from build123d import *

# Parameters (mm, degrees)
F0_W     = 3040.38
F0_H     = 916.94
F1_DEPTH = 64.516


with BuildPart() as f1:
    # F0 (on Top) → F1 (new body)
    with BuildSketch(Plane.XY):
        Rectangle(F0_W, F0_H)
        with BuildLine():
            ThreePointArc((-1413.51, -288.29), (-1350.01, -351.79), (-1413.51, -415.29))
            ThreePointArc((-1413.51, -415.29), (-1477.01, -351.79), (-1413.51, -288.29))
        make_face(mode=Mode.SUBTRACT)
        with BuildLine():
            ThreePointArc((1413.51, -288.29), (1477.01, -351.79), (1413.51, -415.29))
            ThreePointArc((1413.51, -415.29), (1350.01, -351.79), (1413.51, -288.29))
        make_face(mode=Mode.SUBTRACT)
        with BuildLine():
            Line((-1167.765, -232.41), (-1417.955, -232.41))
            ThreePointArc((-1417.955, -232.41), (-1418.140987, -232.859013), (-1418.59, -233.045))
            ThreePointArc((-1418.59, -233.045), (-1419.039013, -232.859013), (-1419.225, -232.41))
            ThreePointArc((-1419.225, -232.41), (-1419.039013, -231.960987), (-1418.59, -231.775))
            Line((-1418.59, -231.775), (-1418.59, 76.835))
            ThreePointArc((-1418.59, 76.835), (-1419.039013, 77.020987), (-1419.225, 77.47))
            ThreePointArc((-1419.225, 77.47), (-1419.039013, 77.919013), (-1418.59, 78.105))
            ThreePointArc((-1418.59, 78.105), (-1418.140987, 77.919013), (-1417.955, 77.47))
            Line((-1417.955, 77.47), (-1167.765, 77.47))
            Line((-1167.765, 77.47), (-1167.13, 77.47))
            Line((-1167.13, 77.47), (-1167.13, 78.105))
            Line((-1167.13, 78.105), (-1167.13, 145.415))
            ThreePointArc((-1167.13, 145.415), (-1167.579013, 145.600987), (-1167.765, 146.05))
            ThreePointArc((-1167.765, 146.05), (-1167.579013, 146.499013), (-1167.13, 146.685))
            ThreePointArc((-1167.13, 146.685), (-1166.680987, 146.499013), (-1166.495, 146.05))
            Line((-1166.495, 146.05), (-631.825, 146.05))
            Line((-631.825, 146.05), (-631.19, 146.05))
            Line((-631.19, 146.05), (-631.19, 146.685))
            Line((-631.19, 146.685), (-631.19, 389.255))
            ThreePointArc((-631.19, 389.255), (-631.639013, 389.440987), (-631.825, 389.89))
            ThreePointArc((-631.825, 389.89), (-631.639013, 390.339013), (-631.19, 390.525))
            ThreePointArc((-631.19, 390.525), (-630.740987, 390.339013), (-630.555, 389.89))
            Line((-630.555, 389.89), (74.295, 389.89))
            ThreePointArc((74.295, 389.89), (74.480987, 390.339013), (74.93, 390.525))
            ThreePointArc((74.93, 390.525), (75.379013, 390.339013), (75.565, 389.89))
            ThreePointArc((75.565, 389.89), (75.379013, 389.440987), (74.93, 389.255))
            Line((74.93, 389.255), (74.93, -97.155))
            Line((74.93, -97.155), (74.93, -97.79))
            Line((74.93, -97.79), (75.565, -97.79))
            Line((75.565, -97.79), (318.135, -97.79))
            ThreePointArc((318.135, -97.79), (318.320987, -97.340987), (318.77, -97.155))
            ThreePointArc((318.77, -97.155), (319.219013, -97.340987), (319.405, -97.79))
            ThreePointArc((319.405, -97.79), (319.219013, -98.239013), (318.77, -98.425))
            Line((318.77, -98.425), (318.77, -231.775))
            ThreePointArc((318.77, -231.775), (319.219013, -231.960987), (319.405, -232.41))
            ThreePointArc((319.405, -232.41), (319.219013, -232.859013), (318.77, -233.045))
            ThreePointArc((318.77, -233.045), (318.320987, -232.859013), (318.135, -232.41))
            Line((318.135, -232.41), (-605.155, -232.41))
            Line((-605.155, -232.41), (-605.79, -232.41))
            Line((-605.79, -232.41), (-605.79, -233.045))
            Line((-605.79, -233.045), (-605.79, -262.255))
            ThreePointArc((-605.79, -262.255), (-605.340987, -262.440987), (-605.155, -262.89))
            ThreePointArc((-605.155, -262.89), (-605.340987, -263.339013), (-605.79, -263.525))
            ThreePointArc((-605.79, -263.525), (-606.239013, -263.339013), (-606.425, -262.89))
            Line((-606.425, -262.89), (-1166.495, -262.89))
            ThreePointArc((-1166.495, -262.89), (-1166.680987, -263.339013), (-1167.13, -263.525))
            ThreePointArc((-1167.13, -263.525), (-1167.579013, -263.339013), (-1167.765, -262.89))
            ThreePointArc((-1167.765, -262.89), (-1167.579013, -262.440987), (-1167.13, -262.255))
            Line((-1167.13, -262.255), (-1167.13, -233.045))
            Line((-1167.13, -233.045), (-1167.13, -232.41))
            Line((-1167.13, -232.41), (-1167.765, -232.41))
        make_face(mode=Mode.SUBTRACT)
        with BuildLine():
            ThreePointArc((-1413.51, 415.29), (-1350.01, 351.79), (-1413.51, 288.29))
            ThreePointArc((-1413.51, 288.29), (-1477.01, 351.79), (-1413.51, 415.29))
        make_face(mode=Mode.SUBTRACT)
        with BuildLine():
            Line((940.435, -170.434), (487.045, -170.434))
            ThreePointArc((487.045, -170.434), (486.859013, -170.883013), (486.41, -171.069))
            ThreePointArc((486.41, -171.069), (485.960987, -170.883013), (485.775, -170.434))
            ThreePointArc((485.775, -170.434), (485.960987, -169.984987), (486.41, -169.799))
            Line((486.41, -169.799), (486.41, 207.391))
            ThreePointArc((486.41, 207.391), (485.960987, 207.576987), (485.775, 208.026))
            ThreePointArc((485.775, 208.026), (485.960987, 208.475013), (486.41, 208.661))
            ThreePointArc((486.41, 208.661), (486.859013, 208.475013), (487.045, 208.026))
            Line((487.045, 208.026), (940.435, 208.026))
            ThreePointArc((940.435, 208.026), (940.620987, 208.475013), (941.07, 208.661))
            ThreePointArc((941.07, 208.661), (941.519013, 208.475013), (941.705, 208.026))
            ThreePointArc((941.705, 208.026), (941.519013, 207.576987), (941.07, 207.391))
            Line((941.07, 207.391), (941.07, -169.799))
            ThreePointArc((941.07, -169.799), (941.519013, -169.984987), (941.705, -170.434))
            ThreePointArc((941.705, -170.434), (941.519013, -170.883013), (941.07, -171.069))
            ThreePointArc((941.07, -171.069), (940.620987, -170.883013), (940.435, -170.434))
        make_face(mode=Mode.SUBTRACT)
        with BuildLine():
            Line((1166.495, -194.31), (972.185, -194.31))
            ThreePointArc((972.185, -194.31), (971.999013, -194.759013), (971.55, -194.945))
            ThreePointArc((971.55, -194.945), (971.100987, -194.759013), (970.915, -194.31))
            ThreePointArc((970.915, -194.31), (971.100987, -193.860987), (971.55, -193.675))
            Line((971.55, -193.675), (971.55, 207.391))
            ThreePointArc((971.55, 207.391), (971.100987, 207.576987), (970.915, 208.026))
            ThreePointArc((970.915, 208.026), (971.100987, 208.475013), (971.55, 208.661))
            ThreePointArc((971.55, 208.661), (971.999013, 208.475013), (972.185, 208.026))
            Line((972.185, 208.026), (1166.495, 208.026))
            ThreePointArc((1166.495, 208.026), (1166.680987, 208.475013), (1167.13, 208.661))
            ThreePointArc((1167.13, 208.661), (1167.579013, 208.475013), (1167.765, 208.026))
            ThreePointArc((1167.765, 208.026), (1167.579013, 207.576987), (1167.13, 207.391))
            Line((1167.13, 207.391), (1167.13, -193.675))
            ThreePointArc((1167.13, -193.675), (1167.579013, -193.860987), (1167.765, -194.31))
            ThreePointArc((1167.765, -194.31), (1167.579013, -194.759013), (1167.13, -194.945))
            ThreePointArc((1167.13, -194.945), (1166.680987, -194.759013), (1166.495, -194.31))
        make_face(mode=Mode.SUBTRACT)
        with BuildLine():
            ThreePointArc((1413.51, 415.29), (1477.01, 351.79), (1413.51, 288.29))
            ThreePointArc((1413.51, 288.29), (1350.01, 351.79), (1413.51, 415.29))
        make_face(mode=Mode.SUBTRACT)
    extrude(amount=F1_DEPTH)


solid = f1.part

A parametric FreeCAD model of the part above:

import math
import FreeCAD as App
import Part
import Sketcher

V = App.Vector
Q = App.Units.Quantity


def add_polygon(sketch, points):
    """Adds a closed chain of lines whose ends are joined by coincident constraints."""
    first, n = sketch.GeometryCount, len(points)
    for a, b in zip(points, points[1:] + points[:1]):
        sketch.addGeometry(Part.LineSegment(App.Vector(*a, 0), App.Vector(*b, 0)), False)
    for i in range(n):
        sketch.addConstraint(Sketcher.Constraint("Coincident", first + i, 2, first + (i + 1) % n, 1))

doc = App.newDocument("Part")
body = doc.addObject("PartDesign::Body", "Body")

# Sketch on XY plane
sketch1 = body.newObject("Sketcher::SketchObject", "Sketch")
sketch1.AttachmentSupport = (doc.getObject("XY_Plane"), [""])
sketch1.MapMode = "FlatFace"
add_polygon(sketch1, [(-1520.19, 458.47), (-1520.19, -458.47), (1520.19, -458.47), (1520.19, 458.47)])  # lines 0-3
sketch1.addGeometry(Part.Circle(V(-1413.51, -351.79, 0), V(0, 0, 1), 63.5), False)  # 4
sketch1.addGeometry(Part.Circle(V(1413.51, -351.79, 0), V(0, 0, 1), 63.5), False)  # 5
sketch1.addGeometry(Part.LineSegment(V(-1167.13, -232.41, 0), V(-1417.955, -232.41, 0)), False)  # 6
sketch1.addGeometry(Part.ArcOfCircle(Part.Circle(V(-1418.589999, -232.410001, 0), V(0, 0, 1), 0.634999), math.radians(-90.00006), math.radians(0.00006)), False)  # 7
sketch1.addGeometry(Part.ArcOfCircle(Part.Circle(V(-1418.590001, -232.410001, 0), V(0, 0, 1), 0.634999), math.radians(179.99994), math.radians(270.00006)), False)  # 8
sketch1.addGeometry(Part.ArcOfCircle(Part.Circle(V(-1418.590001, -232.409999, 0), V(0, 0, 1), 0.634999), math.radians(89.99994), math.radians(180.00006)), False)  # 9
sketch1.addGeometry(Part.LineSegment(V(-1418.59, -231.775, 0), V(-1418.59, 76.835, 0)), False)  # 10
sketch1.addGeometry(Part.ArcOfCircle(Part.Circle(V(-1418.590001, 77.469999, 0), V(0, 0, 1), 0.634999), math.radians(179.99994), math.radians(270.00006)), False)  # 11
sketch1.addGeometry(Part.ArcOfCircle(Part.Circle(V(-1418.590001, 77.470001, 0), V(0, 0, 1), 0.634999), math.radians(89.99994), math.radians(180.00006)), False)  # 12
sketch1.addGeometry(Part.ArcOfCircle(Part.Circle(V(-1418.589999, 77.470001, 0), V(0, 0, 1), 0.634999), math.radians(-0.00006), math.radians(90.00006)), False)  # 13
sketch1.addGeometry(Part.LineSegment(V(-1417.955, 77.47, 0), V(-1167.13, 77.47, 0)), False)  # 14
sketch1.addGeometry(Part.LineSegment(V(-1167.13, 77.47, 0), V(-1167.13, 145.415, 0)), False)  # 15
sketch1.addGeometry(Part.ArcOfCircle(Part.Circle(V(-1167.130001, 146.049999, 0), V(0, 0, 1), 0.634999), math.radians(179.99994), math.radians(270.00006)), False)  # 16
sketch1.addGeometry(Part.ArcOfCircle(Part.Circle(V(-1167.130001, 146.050001, 0), V(0, 0, 1), 0.634999), math.radians(89.99994), math.radians(180.00006)), False)  # 17
sketch1.addGeometry(Part.ArcOfCircle(Part.Circle(V(-1167.129999, 146.050001, 0), V(0, 0, 1), 0.634999), math.radians(-0.00006), math.radians(90.00006)), False)  # 18
sketch1.addGeometry(Part.LineSegment(V(-1166.495, 146.05, 0), V(-631.19, 146.05, 0)), False)  # 19
sketch1.addGeometry(Part.LineSegment(V(-631.19, 146.05, 0), V(-631.19, 389.255, 0)), False)  # 20
sketch1.addGeometry(Part.ArcOfCircle(Part.Circle(V(-631.190001, 389.889999, 0), V(0, 0, 1), 0.634999), math.radians(179.99994), math.radians(270.00006)), False)  # 21
sketch1.addGeometry(Part.ArcOfCircle(Part.Circle(V(-631.190001, 389.890001, 0), V(0, 0, 1), 0.634999), math.radians(89.99994), math.radians(180.00006)), False)  # 22
sketch1.addGeometry(Part.ArcOfCircle(Part.Circle(V(-631.189999, 389.890001, 0), V(0, 0, 1), 0.634999), math.radians(-0.00006), math.radians(90.00006)), False)  # 23
sketch1.addGeometry(Part.LineSegment(V(-630.555, 389.89, 0), V(74.295, 389.89, 0)), False)  # 24
sketch1.addGeometry(Part.ArcOfCircle(Part.Circle(V(74.929999, 389.890001, 0), V(0, 0, 1), 0.634999), math.radians(89.99994), math.radians(180.00006)), False)  # 25
sketch1.addGeometry(Part.ArcOfCircle(Part.Circle(V(74.930001, 389.890001, 0), V(0, 0, 1), 0.634999), math.radians(-0.00006), math.radians(90.00006)), False)  # 26
sketch1.addGeometry(Part.ArcOfCircle(Part.Circle(V(74.930001, 389.889999, 0), V(0, 0, 1), 0.634999), math.radians(-90.00006), math.radians(0.00006)), False)  # 27
sketch1.addGeometry(Part.LineSegment(V(74.93, 389.255, 0), V(74.93, -97.79, 0)), False)  # 28
sketch1.addGeometry(Part.LineSegment(V(74.93, -97.79, 0), V(318.135, -97.79, 0)), False)  # 29
sketch1.addGeometry(Part.ArcOfCircle(Part.Circle(V(318.769999, -97.789999, 0), V(0, 0, 1), 0.634999), math.radians(89.99994), math.radians(180.00006)), False)  # 30
sketch1.addGeometry(Part.ArcOfCircle(Part.Circle(V(318.770001, -97.789999, 0), V(0, 0, 1), 0.634999), math.radians(-0.00006), math.radians(90.00006)), False)  # 31
sketch1.addGeometry(Part.ArcOfCircle(Part.Circle(V(318.770001, -97.790001, 0), V(0, 0, 1), 0.634999), math.radians(-90.00006), math.radians(0.00006)), False)  # 32
sketch1.addGeometry(Part.LineSegment(V(318.77, -98.425, 0), V(318.77, -231.775, 0)), False)  # 33
sketch1.addGeometry(Part.ArcOfCircle(Part.Circle(V(318.770001, -232.409999, 0), V(0, 0, 1), 0.634999), math.radians(-0.00006), math.radians(90.00006)), False)  # 34
sketch1.addGeometry(Part.ArcOfCircle(Part.Circle(V(318.770001, -232.410001, 0), V(0, 0, 1), 0.634999), math.radians(-90.00006), math.radians(0.00006)), False)  # 35
sketch1.addGeometry(Part.ArcOfCircle(Part.Circle(V(318.769999, -232.410001, 0), V(0, 0, 1), 0.634999), math.radians(179.99994), math.radians(270.00006)), False)  # 36
sketch1.addGeometry(Part.LineSegment(V(318.135, -232.41, 0), V(-605.79, -232.41, 0)), False)  # 37
sketch1.addGeometry(Part.LineSegment(V(-605.79, -232.41, 0), V(-605.79, -262.255, 0)), False)  # 38
sketch1.addGeometry(Part.ArcOfCircle(Part.Circle(V(-605.789999, -262.889999, 0), V(0, 0, 1), 0.634999), math.radians(-0.00006), math.radians(90.00006)), False)  # 39
sketch1.addGeometry(Part.ArcOfCircle(Part.Circle(V(-605.789999, -262.890001, 0), V(0, 0, 1), 0.634999), math.radians(-90.00006), math.radians(0.00006)), False)  # 40
sketch1.addGeometry(Part.ArcOfCircle(Part.Circle(V(-605.790001, -262.890001, 0), V(0, 0, 1), 0.634999), math.radians(179.99994), math.radians(270.00006)), False)  # 41
sketch1.addGeometry(Part.LineSegment(V(-606.425, -262.89, 0), V(-1166.495, -262.89, 0)), False)  # 42
sketch1.addGeometry(Part.ArcOfCircle(Part.Circle(V(-1167.129999, -262.890001, 0), V(0, 0, 1), 0.634999), math.radians(-90.00006), math.radians(0.00006)), False)  # 43
sketch1.addGeometry(Part.ArcOfCircle(Part.Circle(V(-1167.130001, -262.890001, 0), V(0, 0, 1), 0.634999), math.radians(179.99994), math.radians(270.00006)), False)  # 44
sketch1.addGeometry(Part.ArcOfCircle(Part.Circle(V(-1167.130001, -262.889999, 0), V(0, 0, 1), 0.634999), math.radians(89.99994), math.radians(180.00006)), False)  # 45
sketch1.addGeometry(Part.LineSegment(V(-1167.13, -262.255, 0), V(-1167.13, -232.41, 0)), False)  # 46
sketch1.addGeometry(Part.Circle(V(-1413.51, 351.79, 0), V(0, 0, 1), 63.5), False)  # 47
sketch1.addGeometry(Part.ArcOfCircle(Part.Circle(V(941.069999, -170.434001, 0), V(0, 0, 1), 0.634999), math.radians(179.99994), math.radians(270.00006)), False)  # 48
sketch1.addGeometry(Part.LineSegment(V(940.435, -170.434, 0), V(487.045, -170.434, 0)), False)  # 49
sketch1.addGeometry(Part.ArcOfCircle(Part.Circle(V(486.410001, -170.434001, 0), V(0, 0, 1), 0.634999), math.radians(-90.00006), math.radians(0.00006)), False)  # 50
sketch1.addGeometry(Part.ArcOfCircle(Part.Circle(V(486.409999, -170.434001, 0), V(0, 0, 1), 0.634999), math.radians(179.99994), math.radians(270.00006)), False)  # 51
sketch1.addGeometry(Part.ArcOfCircle(Part.Circle(V(486.409999, -170.433999, 0), V(0, 0, 1), 0.634999), math.radians(89.99994), math.radians(180.00006)), False)  # 52
sketch1.addGeometry(Part.LineSegment(V(486.41, -169.799, 0), V(486.41, 207.391, 0)), False)  # 53
sketch1.addGeometry(Part.ArcOfCircle(Part.Circle(V(486.409999, 208.025999, 0), V(0, 0, 1), 0.634999), math.radians(179.99994), math.radians(270.00006)), False)  # 54
sketch1.addGeometry(Part.ArcOfCircle(Part.Circle(V(486.409999, 208.026001, 0), V(0, 0, 1), 0.634999), math.radians(89.99994), math.radians(180.00006)), False)  # 55
sketch1.addGeometry(Part.ArcOfCircle(Part.Circle(V(486.410001, 208.026001, 0), V(0, 0, 1), 0.634999), math.radians(-0.00006), math.radians(90.00006)), False)  # 56
sketch1.addGeometry(Part.LineSegment(V(487.045, 208.026, 0), V(940.435, 208.026, 0)), False)  # 57
sketch1.addGeometry(Part.ArcOfCircle(Part.Circle(V(941.069999, 208.026001, 0), V(0, 0, 1), 0.634999), math.radians(89.99994), math.radians(180.00006)), False)  # 58
sketch1.addGeometry(Part.ArcOfCircle(Part.Circle(V(941.070001, 208.026001, 0), V(0, 0, 1), 0.634999), math.radians(-0.00006), math.radians(90.00006)), False)  # 59
sketch1.addGeometry(Part.ArcOfCircle(Part.Circle(V(941.070001, 208.025999, 0), V(0, 0, 1), 0.634999), math.radians(-90.00006), math.radians(0.00006)), False)  # 60
sketch1.addGeometry(Part.LineSegment(V(941.07, 207.391, 0), V(941.07, -169.799, 0)), False)  # 61
sketch1.addGeometry(Part.ArcOfCircle(Part.Circle(V(941.070001, -170.433999, 0), V(0, 0, 1), 0.634999), math.radians(-0.00006), math.radians(90.00006)), False)  # 62
sketch1.addGeometry(Part.ArcOfCircle(Part.Circle(V(941.070001, -170.434001, 0), V(0, 0, 1), 0.634999), math.radians(-90.00006), math.radians(0.00006)), False)  # 63
sketch1.addGeometry(Part.ArcOfCircle(Part.Circle(V(1167.129999, -194.310001, 0), V(0, 0, 1), 0.634999), math.radians(179.99994), math.radians(270.00006)), False)  # 64
sketch1.addGeometry(Part.LineSegment(V(1166.495, -194.31, 0), V(972.185, -194.31, 0)), False)  # 65
sketch1.addGeometry(Part.ArcOfCircle(Part.Circle(V(971.550001, -194.310001, 0), V(0, 0, 1), 0.634999), math.radians(-90.00006), math.radians(0.00006)), False)  # 66
sketch1.addGeometry(Part.ArcOfCircle(Part.Circle(V(971.549999, -194.310001, 0), V(0, 0, 1), 0.634999), math.radians(179.99994), math.radians(270.00006)), False)  # 67
sketch1.addGeometry(Part.ArcOfCircle(Part.Circle(V(971.549999, -194.309999, 0), V(0, 0, 1), 0.634999), math.radians(89.99994), math.radians(180.00006)), False)  # 68
sketch1.addGeometry(Part.LineSegment(V(971.55, -193.675, 0), V(971.55, 207.391, 0)), False)  # 69
sketch1.addGeometry(Part.ArcOfCircle(Part.Circle(V(971.549999, 208.025999, 0), V(0, 0, 1), 0.634999), math.radians(179.99994), math.radians(270.00006)), False)  # 70
sketch1.addGeometry(Part.ArcOfCircle(Part.Circle(V(971.549999, 208.026001, 0), V(0, 0, 1), 0.634999), math.radians(89.99994), math.radians(180.00006)), False)  # 71
sketch1.addGeometry(Part.ArcOfCircle(Part.Circle(V(971.550001, 208.026001, 0), V(0, 0, 1), 0.634999), math.radians(-0.00006), math.radians(90.00006)), False)  # 72
sketch1.addGeometry(Part.LineSegment(V(972.185, 208.026, 0), V(1166.495, 208.026, 0)), False)  # 73
sketch1.addGeometry(Part.ArcOfCircle(Part.Circle(V(1167.129999, 208.026001, 0), V(0, 0, 1), 0.634999), math.radians(89.99994), math.radians(180.00006)), False)  # 74
sketch1.addGeometry(Part.ArcOfCircle(Part.Circle(V(1167.130001, 208.026001, 0), V(0, 0, 1), 0.634999), math.radians(-0.00006), math.radians(90.00006)), False)  # 75
sketch1.addGeometry(Part.ArcOfCircle(Part.Circle(V(1167.130001, 208.025999, 0), V(0, 0, 1), 0.634999), math.radians(-90.00006), math.radians(0.00006)), False)  # 76
sketch1.addGeometry(Part.LineSegment(V(1167.13, 207.391, 0), V(1167.13, -193.675, 0)), False)  # 77
sketch1.addGeometry(Part.ArcOfCircle(Part.Circle(V(1167.130001, -194.309999, 0), V(0, 0, 1), 0.634999), math.radians(-0.00006), math.radians(90.00006)), False)  # 78
sketch1.addGeometry(Part.ArcOfCircle(Part.Circle(V(1167.130001, -194.310001, 0), V(0, 0, 1), 0.634999), math.radians(-90.00006), math.radians(0.00006)), False)  # 79
sketch1.addGeometry(Part.Circle(V(1413.51, 351.79, 0), V(0, 0, 1), 63.5), False)  # 80
sketch1.addConstraint([
    Sketcher.Constraint("Coincident", 6, 2, 7, 2),
    Sketcher.Constraint("Coincident", 7, 1, 8, 2),
    Sketcher.Constraint("Coincident", 8, 1, 9, 2),
    Sketcher.Constraint("Coincident", 9, 1, 10, 1),
    Sketcher.Constraint("Coincident", 10, 2, 11, 2),
    Sketcher.Constraint("Coincident", 11, 1, 12, 2),
    Sketcher.Constraint("Coincident", 12, 1, 13, 2),
    Sketcher.Constraint("Coincident", 13, 1, 14, 1),
    Sketcher.Constraint("Coincident", 14, 2, 15, 1),
    Sketcher.Constraint("Coincident", 15, 2, 16, 2),
    Sketcher.Constraint("Coincident", 16, 1, 17, 2),
    Sketcher.Constraint("Coincident", 17, 1, 18, 2),
    Sketcher.Constraint("Coincident", 18, 1, 19, 1),
    Sketcher.Constraint("Coincident", 19, 2, 20, 1),
    Sketcher.Constraint("Coincident", 20, 2, 21, 2),
    Sketcher.Constraint("Coincident", 21, 1, 22, 2),
    Sketcher.Constraint("Coincident", 22, 1, 23, 2),
    Sketcher.Constraint("Coincident", 23, 1, 24, 1),
    Sketcher.Constraint("Coincident", 24, 2, 25, 2),
    Sketcher.Constraint("Coincident", 25, 1, 26, 2),
    Sketcher.Constraint("Coincident", 26, 1, 27, 2),
    Sketcher.Constraint("Coincident", 27, 1, 28, 1),
    Sketcher.Constraint("Coincident", 28, 2, 29, 1),
    Sketcher.Constraint("Coincident", 29, 2, 30, 2),
    Sketcher.Constraint("Coincident", 30, 1, 31, 2),
    Sketcher.Constraint("Coincident", 31, 1, 32, 2),
    Sketcher.Constraint("Coincident", 32, 1, 33, 1),
    Sketcher.Constraint("Coincident", 33, 2, 34, 2),
    Sketcher.Constraint("Coincident", 34, 1, 35, 2),
    Sketcher.Constraint("Coincident", 35, 1, 36, 2),
    Sketcher.Constraint("Coincident", 36, 1, 37, 1),
    Sketcher.Constraint("Coincident", 37, 2, 38, 1),
    Sketcher.Constraint("Coincident", 38, 2, 39, 2),
    Sketcher.Constraint("Coincident", 39, 1, 40, 2),
    Sketcher.Constraint("Coincident", 40, 1, 41, 2),
    Sketcher.Constraint("Coincident", 41, 1, 42, 1),
    Sketcher.Constraint("Coincident", 42, 2, 43, 2),
    Sketcher.Constraint("Coincident", 43, 1, 44, 2),
    Sketcher.Constraint("Coincident", 44, 1, 45, 2),
    Sketcher.Constraint("Coincident", 45, 1, 46, 1),
    Sketcher.Constraint("Coincident", 46, 2, 6, 1),
    Sketcher.Constraint("Coincident", 48, 1, 49, 1),
    Sketcher.Constraint("Coincident", 49, 2, 50, 2),
    Sketcher.Constraint("Coincident", 50, 1, 51, 2),
    Sketcher.Constraint("Coincident", 51, 1, 52, 2),
    Sketcher.Constraint("Coincident", 52, 1, 53, 1),
    Sketcher.Constraint("Coincident", 53, 2, 54, 2),
    Sketcher.Constraint("Coincident", 54, 1, 55, 2),
    Sketcher.Constraint("Coincident", 55, 1, 56, 2),
    Sketcher.Constraint("Coincident", 56, 1, 57, 1),
    Sketcher.Constraint("Coincident", 57, 2, 58, 2),
    Sketcher.Constraint("Coincident", 58, 1, 59, 2),
    Sketcher.Constraint("Coincident", 59, 1, 60, 2),
    Sketcher.Constraint("Coincident", 60, 1, 61, 1),
    Sketcher.Constraint("Coincident", 61, 2, 62, 2),
    Sketcher.Constraint("Coincident", 62, 1, 63, 2),
    Sketcher.Constraint("Coincident", 63, 1, 48, 2),
    Sketcher.Constraint("Coincident", 64, 1, 65, 1),
    Sketcher.Constraint("Coincident", 65, 2, 66, 2),
    Sketcher.Constraint("Coincident", 66, 1, 67, 2),
    Sketcher.Constraint("Coincident", 67, 1, 68, 2),
    Sketcher.Constraint("Coincident", 68, 1, 69, 1),
    Sketcher.Constraint("Coincident", 69, 2, 70, 2),
    Sketcher.Constraint("Coincident", 70, 1, 71, 2),
    Sketcher.Constraint("Coincident", 71, 1, 72, 2),
    Sketcher.Constraint("Coincident", 72, 1, 73, 1),
    Sketcher.Constraint("Coincident", 73, 2, 74, 2),
    Sketcher.Constraint("Coincident", 74, 1, 75, 2),
    Sketcher.Constraint("Coincident", 75, 1, 76, 2),
    Sketcher.Constraint("Coincident", 76, 1, 77, 1),
    Sketcher.Constraint("Coincident", 77, 2, 78, 2),
    Sketcher.Constraint("Coincident", 78, 1, 79, 2),
    Sketcher.Constraint("Coincident", 79, 1, 64, 2),
    Sketcher.Constraint("Vertical", 0),
    Sketcher.Constraint("Horizontal", 1),
    Sketcher.Constraint("Vertical", 2),
    Sketcher.Constraint("Horizontal", 3),
    Sketcher.Constraint("Horizontal", 6),
    Sketcher.Constraint("Vertical", 10),
    Sketcher.Constraint("Horizontal", 14),
    Sketcher.Constraint("Vertical", 15),
    Sketcher.Constraint("Horizontal", 19),
    Sketcher.Constraint("Vertical", 20),
    Sketcher.Constraint("Horizontal", 24),
    Sketcher.Constraint("Vertical", 28),
    Sketcher.Constraint("Horizontal", 29),
    Sketcher.Constraint("Vertical", 33),
    Sketcher.Constraint("Horizontal", 37),
    Sketcher.Constraint("Vertical", 38),
    Sketcher.Constraint("Horizontal", 42),
    Sketcher.Constraint("Vertical", 46),
    Sketcher.Constraint("Horizontal", 49),
    Sketcher.Constraint("Vertical", 53),
    Sketcher.Constraint("Horizontal", 57),
    Sketcher.Constraint("Vertical", 61),
    Sketcher.Constraint("Horizontal", 65),
    Sketcher.Constraint("Vertical", 69),
    Sketcher.Constraint("Horizontal", 73),
    Sketcher.Constraint("Vertical", 77),
    Sketcher.Constraint("Coincident", 8, 3, 7, 3),
    Sketcher.Constraint("Coincident", 9, 3, 7, 3),
    Sketcher.Constraint("Coincident", 12, 3, 11, 3),
    Sketcher.Constraint("Coincident", 13, 3, 11, 3),
    Sketcher.Constraint("Coincident", 17, 3, 16, 3),
    Sketcher.Constraint("Coincident", 18, 3, 16, 3),
    Sketcher.Constraint("Coincident", 22, 3, 21, 3),
    Sketcher.Constraint("Coincident", 23, 3, 21, 3),
    Sketcher.Constraint("Coincident", 26, 3, 25, 3),
    Sketcher.Constraint("Coincident", 27, 3, 25, 3),
    Sketcher.Constraint("Coincident", 31, 3, 30, 3),
    Sketcher.Constraint("Coincident", 32, 3, 30, 3),
    Sketcher.Constraint("Coincident", 35, 3, 34, 3),
    Sketcher.Constraint("Coincident", 36, 3, 34, 3),
    Sketcher.Constraint("Coincident", 40, 3, 39, 3),
    Sketcher.Constraint("Coincident", 41, 3, 39, 3),
    Sketcher.Constraint("Coincident", 44, 3, 43, 3),
    Sketcher.Constraint("Coincident", 45, 3, 43, 3),
    Sketcher.Constraint("Coincident", 51, 3, 50, 3),
    Sketcher.Constraint("Coincident", 52, 3, 50, 3),
    Sketcher.Constraint("Coincident", 55, 3, 54, 3),
    Sketcher.Constraint("Coincident", 56, 3, 54, 3),
    Sketcher.Constraint("Coincident", 59, 3, 58, 3),
    Sketcher.Constraint("Coincident", 60, 3, 58, 3),
    Sketcher.Constraint("Coincident", 62, 3, 48, 3),
    Sketcher.Constraint("Coincident", 63, 3, 48, 3),
    Sketcher.Constraint("Coincident", 67, 3, 66, 3),
    Sketcher.Constraint("Coincident", 68, 3, 66, 3),
    Sketcher.Constraint("Coincident", 71, 3, 70, 3),
    Sketcher.Constraint("Coincident", 72, 3, 70, 3),
    Sketcher.Constraint("Coincident", 75, 3, 74, 3),
    Sketcher.Constraint("Coincident", 76, 3, 74, 3),
    Sketcher.Constraint("Coincident", 78, 3, 64, 3),
    Sketcher.Constraint("Coincident", 79, 3, 64, 3),
    Sketcher.Constraint("Equal", 4, 5),
    Sketcher.Constraint("Equal", 9, 11),
    Sketcher.Constraint("Equal", 13, 16),
    Sketcher.Constraint("Equal", 18, 21),
    Sketcher.Constraint("Equal", 23, 25),
    Sketcher.Constraint("Equal", 27, 30),
    Sketcher.Constraint("Equal", 32, 34),
    Sketcher.Constraint("Equal", 36, 39),
    Sketcher.Constraint("Equal", 41, 43),
    Sketcher.Constraint("Equal", 5, 47),
    Sketcher.Constraint("Equal", 45, 48),
    Sketcher.Constraint("Equal", 48, 50),
    Sketcher.Constraint("Equal", 52, 54),
    Sketcher.Constraint("Equal", 56, 58),
    Sketcher.Constraint("Equal", 63, 64),
    Sketcher.Constraint("Equal", 64, 66),
    Sketcher.Constraint("Equal", 68, 70),
    Sketcher.Constraint("Equal", 72, 74),
    Sketcher.Constraint("Equal", 47, 80),
    Sketcher.Constraint("Symmetric", 5, 3, 47, 3, -1, 1),
    Sketcher.Constraint("Symmetric", 4, 3, 80, 3, -1, 1),
    Sketcher.Constraint("Symmetric", 0, 2, 2, 2, -1, 1),
    Sketcher.Constraint("Symmetric", 4, 3, 5, 3, -2),
    Sketcher.Constraint("Horizontal", 23, 3, 25, 3),
    Sketcher.Constraint("Horizontal", 9, 3, 34, 3),
    Sketcher.Constraint("Horizontal", 41, 3, 43, 3),
    Sketcher.Constraint("Horizontal", 48, 3, 50, 3),
    Sketcher.Constraint("Horizontal", 56, 3, 58, 3),
    Sketcher.Constraint("Horizontal", 64, 3, 66, 3),
    Sketcher.Constraint("Horizontal", 60, 3, 70, 3),
    Sketcher.Constraint("Horizontal", 72, 3, 74, 3),
    Sketcher.Constraint("Horizontal", 36, 3, 6, 2),
    Sketcher.Constraint("Horizontal", 6, 2, 8, 1),
    Sketcher.Constraint("Horizontal", 13, 3, 11, 1),
    Sketcher.Constraint("Horizontal", 11, 1, 13, 1),
    Sketcher.Constraint("Horizontal", 18, 3, 16, 1),
    Sketcher.Constraint("Horizontal", 16, 1, 18, 1),
    Sketcher.Constraint("Horizontal", 27, 3, 21, 1),
    Sketcher.Constraint("Horizontal", 21, 1, 23, 1),
    Sketcher.Constraint("Horizontal", 24, 2, 26, 1),
    Sketcher.Constraint("Horizontal", 32, 3, 28, 2),
    Sketcher.Constraint("Horizontal", 29, 2, 31, 1),
    Sketcher.Constraint("Horizontal", 8, 1, 34, 1),
    Sketcher.Constraint("Horizontal", 34, 1, 36, 1),
    Sketcher.Constraint("Horizontal", 45, 3, 39, 1),
    Sketcher.Constraint("Horizontal", 39, 1, 41, 1),
    Sketcher.Constraint("Horizontal", 42, 2, 44, 1),
    Sketcher.Constraint("Horizontal", 63, 3, 48, 1),
    Sketcher.Constraint("Horizontal", 49, 2, 51, 1),
    Sketcher.Constraint("Horizontal", 76, 3, 54, 1),
    Sketcher.Constraint("Horizontal", 54, 1, 56, 1),
    Sketcher.Constraint("Horizontal", 57, 2, 59, 1),
    Sketcher.Constraint("Horizontal", 51, 1, 62, 1),
    Sketcher.Constraint("Horizontal", 79, 3, 64, 1),
    Sketcher.Constraint("Horizontal", 65, 2, 67, 1),
    Sketcher.Constraint("Horizontal", 59, 1, 70, 1),
    Sketcher.Constraint("Horizontal", 70, 1, 72, 1),
    Sketcher.Constraint("Horizontal", 73, 2, 75, 1),
    Sketcher.Constraint("Horizontal", 67, 1, 78, 1),
    Sketcher.Constraint("Vertical", 9, 3, 11, 3),
    Sketcher.Constraint("Vertical", 32, 3, 34, 3),
    Sketcher.Constraint("Vertical", 18, 3, 43, 3),
    Sketcher.Constraint("Vertical", 52, 3, 54, 3),
    Sketcher.Constraint("Vertical", 48, 3, 58, 3),
    Sketcher.Constraint("Vertical", 68, 3, 70, 3),
    Sketcher.Constraint("Vertical", 64, 3, 74, 3),
    Sketcher.Constraint("Vertical", 13, 3, 7, 1),
    Sketcher.Constraint("Vertical", 7, 1, 9, 1),
    Sketcher.Constraint("Vertical", 10, 2, 12, 1),
    Sketcher.Constraint("Vertical", 45, 3, 14, 2),
    Sketcher.Constraint("Vertical", 15, 2, 17, 1),
    Sketcher.Constraint("Vertical", 23, 3, 19, 2),
    Sketcher.Constraint("Vertical", 20, 2, 22, 1),
    Sketcher.Constraint("Vertical", 27, 3, 25, 1),
    Sketcher.Constraint("Vertical", 25, 1, 27, 1),
    Sketcher.Constraint("Vertical", 36, 3, 30, 1),
    Sketcher.Constraint("Vertical", 30, 1, 32, 1),
    Sketcher.Constraint("Vertical", 33, 2, 35, 1),
    Sketcher.Constraint("Vertical", 41, 3, 37, 2),
    Sketcher.Constraint("Vertical", 38, 2, 40, 1),
    Sketcher.Constraint("Vertical", 17, 1, 43, 1),
    Sketcher.Constraint("Vertical", 43, 1, 45, 1),
    Sketcher.Constraint("Vertical", 56, 3, 50, 1),
    Sketcher.Constraint("Vertical", 50, 1, 52, 1),
    Sketcher.Constraint("Vertical", 53, 2, 55, 1),
    Sketcher.Constraint("Vertical", 63, 3, 58, 1),
    Sketcher.Constraint("Vertical", 58, 1, 60, 1),
    Sketcher.Constraint("Vertical", 61, 2, 63, 1),
    Sketcher.Constraint("Vertical", 72, 3, 66, 1),
    Sketcher.Constraint("Vertical", 66, 1, 68, 1),
    Sketcher.Constraint("Vertical", 69, 2, 71, 1),
    Sketcher.Constraint("Vertical", 79, 3, 74, 1),
    Sketcher.Constraint("Vertical", 74, 1, 76, 1),
    Sketcher.Constraint("Vertical", 77, 2, 79, 1),
    Sketcher.Constraint("Equal", 29, 20),
    Sketcher.Constraint("Diameter", 4, Q("5 in")),
    Sketcher.Constraint("DistanceX", 1, 1, 1, 2, Q("119.7 in")),
    Sketcher.Constraint("DistanceY", 0, 2, 0, 1, Q("36.1 in")),
    Sketcher.Constraint("Radius", 7, Q("0.025 in")),
    Sketcher.Constraint("DistanceX", 24, 1, 24, 2, Q("27.75 in")),
    Sketcher.Constraint("DistanceX", 42, 2, 42, 1, Q("22.05 in")),
    Sketcher.Constraint("DistanceX", 49, 2, 49, 1, Q("17.85 in")),
    Sketcher.Constraint("DistanceX", 65, 2, 65, 1, Q("7.65 in")),
    Sketcher.Constraint("DistanceY", 10, 1, 10, 2, Q("12.15 in")),
    Sketcher.Constraint("DistanceY", 33, 2, 33, 1, Q("5.25 in")),
    Sketcher.Constraint("DistanceY", 53, 1, 53, 2, Q("14.85 in")),
    Sketcher.Constraint("DistanceY", 69, 1, 69, 2, Q("15.79 in")),
    Sketcher.Constraint("DistanceX", 6, 2, 6, 1, Q("9.875 in")),
    Sketcher.Constraint("DistanceX", 19, 1, 19, 2, Q("21.075 in")),
    Sketcher.Constraint("DistanceX", 29, 1, 29, 2, Q("9.575 in")),
    Sketcher.Constraint("DistanceY", 15, 1, 15, 2, Q("2.675 in")),
    Sketcher.Constraint("DistanceY", 38, 2, 38, 1, Q("1.175 in")),
    Sketcher.Constraint("DistanceX", 4, 3, -1, 1, Q("55.65 in")),
    Sketcher.Constraint("DistanceY", 4, 3, -1, 1, Q("13.85 in")),
    Sketcher.Constraint("DistanceX", 7, 3, -1, 1, Q("55.85 in")),
    Sketcher.Constraint("DistanceY", 7, 3, -1, 1, Q("9.15 in")),
    Sketcher.Constraint("DistanceX", -1, 1, 48, 3, Q("37.05 in")),
    Sketcher.Constraint("DistanceY", 48, 3, -1, 1, Q("6.71 in")),
    Sketcher.Constraint("DistanceX", -1, 1, 64, 3, Q("45.95 in")),
])
pad1 = body.newObject("PartDesign::Pad", "Pad")
pad1.Profile = sketch1
pad1.Length = Q("2.54 in")

doc.recompute()
